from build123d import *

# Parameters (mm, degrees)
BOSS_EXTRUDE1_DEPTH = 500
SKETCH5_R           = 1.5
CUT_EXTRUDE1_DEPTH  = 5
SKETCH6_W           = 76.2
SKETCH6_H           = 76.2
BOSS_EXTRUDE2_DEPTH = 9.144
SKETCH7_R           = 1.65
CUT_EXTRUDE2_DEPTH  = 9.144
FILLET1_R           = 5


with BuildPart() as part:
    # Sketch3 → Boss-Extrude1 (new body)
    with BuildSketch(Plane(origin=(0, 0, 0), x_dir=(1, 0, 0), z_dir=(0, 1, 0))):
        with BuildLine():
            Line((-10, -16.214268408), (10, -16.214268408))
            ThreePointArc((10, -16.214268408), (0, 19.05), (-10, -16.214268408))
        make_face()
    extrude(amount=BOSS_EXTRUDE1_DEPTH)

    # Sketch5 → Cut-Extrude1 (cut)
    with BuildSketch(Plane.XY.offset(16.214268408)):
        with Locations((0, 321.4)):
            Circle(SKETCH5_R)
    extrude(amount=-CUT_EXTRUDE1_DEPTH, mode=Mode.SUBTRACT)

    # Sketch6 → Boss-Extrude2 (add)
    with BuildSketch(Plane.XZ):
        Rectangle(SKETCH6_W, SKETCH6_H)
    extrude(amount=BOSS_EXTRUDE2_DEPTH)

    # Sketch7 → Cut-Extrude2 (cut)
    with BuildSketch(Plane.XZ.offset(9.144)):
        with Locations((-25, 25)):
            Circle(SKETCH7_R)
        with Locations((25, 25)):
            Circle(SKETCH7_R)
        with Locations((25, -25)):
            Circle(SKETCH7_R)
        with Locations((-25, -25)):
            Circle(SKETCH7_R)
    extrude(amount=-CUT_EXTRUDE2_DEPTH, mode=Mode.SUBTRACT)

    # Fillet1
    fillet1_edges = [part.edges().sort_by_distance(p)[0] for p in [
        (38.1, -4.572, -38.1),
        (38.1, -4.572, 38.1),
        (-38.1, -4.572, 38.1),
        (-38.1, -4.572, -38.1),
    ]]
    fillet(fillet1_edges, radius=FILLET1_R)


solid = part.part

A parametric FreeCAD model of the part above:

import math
import FreeCAD as App
import Part
import Sketcher
from FreeCAD import Vector
Q = App.Units.Quantity


def edges_at(feature, points):
    """Names of the edges that pass closest to the given points."""
    edges = feature.Shape.Edges
    near = lambda p: min(range(len(edges)), key=lambda i: edges[i].distToShape(Part.Vertex(*p))[0])
    return sorted({f"Edge{near(p) + 1}" for p in points})

doc = App.newDocument("Part")
body = doc.addObject("PartDesign::Body", "Body")

sketch1 = body.newObject("Sketcher::SketchObject", "Sketch")
sketch1.AttachmentSupport = (doc.getObject("XZ_Plane"), [""])
sketch1.MapMode = "FlatFace"
sketch1.addGeometry(Part.LineSegment(Vector(-10, 16.214268, 0), Vector(10, 16.214268, 0)), False)
sketch1.addGeometry(Part.ArcOfCircle(Part.Circle(Vector(0, 0, 0), Vector(0, 0, 1), 19.05), math.radians(121.663826), math.radians(418.336174)), False)
sketch1.addConstraint(Sketcher.Constraint("Coincident", 0, 1, 1, 1))
sketch1.addConstraint(Sketcher.Constraint("Coincident", 1, 2, 0, 2))
sketch1.addConstraint(Sketcher.Constraint("Horizontal", 0))
sketch1.addConstraint(Sketcher.Constraint("Coincident", 1, 3, -1, 1))
sketch1.addConstraint(Sketcher.Constraint("DistanceX", 0, 1, 0, 2, Q("20 mm")))
sketch1.addConstraint(Sketcher.Constraint("Radius", 1, Q("19.05 mm")))
pad1 = body.newObject("PartDesign::Pad", "Pad")
pad1.Profile = sketch1
pad1.Length = 500
pad1.Reversed = True

sketch2 = body.newObject("Sketcher::SketchObject", "Sketch001")
sketch2.AttachmentSupport = (doc.getObject("XY_Plane"), [""])
sketch2.MapMode = "FlatFace"
sketch2.AttachmentOffset = App.Placement(Vector(0, 0, 16.214268), App.Rotation())
sketch2.addGeometry(Part.Circle(Vector(0, 321.4, 0), Vector(0, 0, 1), 1.5), False)
sketch2.addConstraint(Sketcher.Constraint("PointOnObject", 0, 3, -2))
sketch2.addConstraint(Sketcher.Constraint("Diameter", 0, Q("3 mm")))
sketch2.addConstraint(Sketcher.Constraint("DistanceY", -1, 1, 0, 3, Q("321.4 mm")))
pocket1 = body.newObject("PartDesign::Pocket", "Pocket")
pocket1.Profile = sketch2
pocket1.Length = 5

sketch3 = body.newObject("Sketcher::SketchObject", "Sketch002")
sketch3.AttachmentSupport = (doc.getObject("XZ_Plane"), [""])
sketch3.MapMode = "FlatFace"
sketch3.addGeometry(Part.LineSegment(Vector(-38.1, 38.1, 0), Vector(-38.1, -38.1, 0)), False)
sketch3.addGeometry(Part.LineSegment(Vector(-38.1, -38.1, 0), Vector(38.1, -38.1, 0)), False)
sketch3.addGeometry(Part.LineSegment(Vector(38.1, -38.1, 0), Vector(38.1, 38.1, 0)), False)
sketch3.addGeometry(Part.LineSegment(Vector(38.1, 38.1, 0), Vector(-38.1, 38.1, 0)), False)
sketch3.addConstraint(Sketcher.Constraint("Coincident", 0, 2, 1, 1))
sketch3.addConstraint(Sketcher.Constraint("Coincident", 1, 2, 2, 1))
sketch3.addConstraint(Sketcher.Constraint("Coincident", 2, 2, 3, 1))
sketch3.addConstraint(Sketcher.Constraint("Coincident", 3, 2, 0, 1))
sketch3.addConstraint(Sketcher.Constraint("Vertical", 0))
sketch3.addConstraint(Sketcher.Constraint("Horizontal", 1))
sketch3.addConstraint(Sketcher.Constraint("Vertical", 2))
sketch3.addConstraint(Sketcher.Constraint("Horizontal", 3))
sketch3.addConstraint(Sketcher.Constraint("Symmetric", 0, 2, 2, 2, -1, 1))
sketch3.addConstraint(Sketcher.Constraint("Equal", 3, 0))
sketch3.addConstraint(Sketcher.Constraint("DistanceX", 1, 1, 1, 2, Q("76.2 mm")))
pad2 = body.newObject("PartDesign::Pad", "Pad001")
pad2.Profile = sketch3
pad2.Length = 9.144

sketch4 = body.newObject("Sketcher::SketchObject", "Sketch003")
sketch4.AttachmentSupport = (doc.getObject("XZ_Plane"), [""])
sketch4.MapMode = "FlatFace"
sketch4.AttachmentOffset = App.Placement(Vector(0, 0, 9.144), App.Rotation())
sketch4.addGeometry(Part.Circle(Vector(-25, 25, 0), Vector(0, 0, 1), 1.65), False)
sketch4.addGeometry(Part.Circle(Vector(25, 25, 0), Vector(0, 0, 1), 1.65), False)
sketch4.addGeometry(Part.Circle(Vector(25, -25, 0), Vector(0, 0, 1), 1.65), False)
sketch4.addGeometry(Part.Circle(Vector(-25, -25, 0), Vector(0, 0, 1), 1.65), False)
sketch4.addConstraint(Sketcher.Constraint("Equal", 0, 1))
sketch4.addConstraint(Sketcher.Constraint("Equal", 1, 2))
sketch4.addConstraint(Sketcher.Constraint("Equal", 2, 3))
sketch4.addConstraint(Sketcher.Constraint("Symmetric", 0, 3, 2, 3, -1, 1))
sketch4.addConstraint(Sketcher.Constraint("Symmetric", 1, 3, 3, 3, -1, 1))
sketch4.addConstraint(Sketcher.Constraint("Symmetric", 0, 3, 1, 3, -2))
sketch4.addConstraint(Sketcher.Constraint("Diameter", 0, Q("3.3 mm")))
sketch4.addConstraint(Sketcher.Constraint("DistanceX", 0, 3, -1, 1, Q("25 mm")))
sketch4.addConstraint(Sketcher.Constraint("DistanceY", -1, 1, 0, 3, Q("25 mm")))
pocket2 = body.newObject("PartDesign::Pocket", "Pocket001")
pocket2.Profile = sketch4
pocket2.Length = 9.144
doc.recompute()

fillet = body.newObject("PartDesign::Fillet", "Fillet")
fillet.Base = (pocket2, edges_at(pocket2, [
    (38.1, -4.572, -38.1),
    (38.1, -4.572, 38.1),
    (-38.1, -4.572, 38.1),
    (-38.1, -4.572, -38.1),
]))
fillet.Radius = 5

doc.recompute()
